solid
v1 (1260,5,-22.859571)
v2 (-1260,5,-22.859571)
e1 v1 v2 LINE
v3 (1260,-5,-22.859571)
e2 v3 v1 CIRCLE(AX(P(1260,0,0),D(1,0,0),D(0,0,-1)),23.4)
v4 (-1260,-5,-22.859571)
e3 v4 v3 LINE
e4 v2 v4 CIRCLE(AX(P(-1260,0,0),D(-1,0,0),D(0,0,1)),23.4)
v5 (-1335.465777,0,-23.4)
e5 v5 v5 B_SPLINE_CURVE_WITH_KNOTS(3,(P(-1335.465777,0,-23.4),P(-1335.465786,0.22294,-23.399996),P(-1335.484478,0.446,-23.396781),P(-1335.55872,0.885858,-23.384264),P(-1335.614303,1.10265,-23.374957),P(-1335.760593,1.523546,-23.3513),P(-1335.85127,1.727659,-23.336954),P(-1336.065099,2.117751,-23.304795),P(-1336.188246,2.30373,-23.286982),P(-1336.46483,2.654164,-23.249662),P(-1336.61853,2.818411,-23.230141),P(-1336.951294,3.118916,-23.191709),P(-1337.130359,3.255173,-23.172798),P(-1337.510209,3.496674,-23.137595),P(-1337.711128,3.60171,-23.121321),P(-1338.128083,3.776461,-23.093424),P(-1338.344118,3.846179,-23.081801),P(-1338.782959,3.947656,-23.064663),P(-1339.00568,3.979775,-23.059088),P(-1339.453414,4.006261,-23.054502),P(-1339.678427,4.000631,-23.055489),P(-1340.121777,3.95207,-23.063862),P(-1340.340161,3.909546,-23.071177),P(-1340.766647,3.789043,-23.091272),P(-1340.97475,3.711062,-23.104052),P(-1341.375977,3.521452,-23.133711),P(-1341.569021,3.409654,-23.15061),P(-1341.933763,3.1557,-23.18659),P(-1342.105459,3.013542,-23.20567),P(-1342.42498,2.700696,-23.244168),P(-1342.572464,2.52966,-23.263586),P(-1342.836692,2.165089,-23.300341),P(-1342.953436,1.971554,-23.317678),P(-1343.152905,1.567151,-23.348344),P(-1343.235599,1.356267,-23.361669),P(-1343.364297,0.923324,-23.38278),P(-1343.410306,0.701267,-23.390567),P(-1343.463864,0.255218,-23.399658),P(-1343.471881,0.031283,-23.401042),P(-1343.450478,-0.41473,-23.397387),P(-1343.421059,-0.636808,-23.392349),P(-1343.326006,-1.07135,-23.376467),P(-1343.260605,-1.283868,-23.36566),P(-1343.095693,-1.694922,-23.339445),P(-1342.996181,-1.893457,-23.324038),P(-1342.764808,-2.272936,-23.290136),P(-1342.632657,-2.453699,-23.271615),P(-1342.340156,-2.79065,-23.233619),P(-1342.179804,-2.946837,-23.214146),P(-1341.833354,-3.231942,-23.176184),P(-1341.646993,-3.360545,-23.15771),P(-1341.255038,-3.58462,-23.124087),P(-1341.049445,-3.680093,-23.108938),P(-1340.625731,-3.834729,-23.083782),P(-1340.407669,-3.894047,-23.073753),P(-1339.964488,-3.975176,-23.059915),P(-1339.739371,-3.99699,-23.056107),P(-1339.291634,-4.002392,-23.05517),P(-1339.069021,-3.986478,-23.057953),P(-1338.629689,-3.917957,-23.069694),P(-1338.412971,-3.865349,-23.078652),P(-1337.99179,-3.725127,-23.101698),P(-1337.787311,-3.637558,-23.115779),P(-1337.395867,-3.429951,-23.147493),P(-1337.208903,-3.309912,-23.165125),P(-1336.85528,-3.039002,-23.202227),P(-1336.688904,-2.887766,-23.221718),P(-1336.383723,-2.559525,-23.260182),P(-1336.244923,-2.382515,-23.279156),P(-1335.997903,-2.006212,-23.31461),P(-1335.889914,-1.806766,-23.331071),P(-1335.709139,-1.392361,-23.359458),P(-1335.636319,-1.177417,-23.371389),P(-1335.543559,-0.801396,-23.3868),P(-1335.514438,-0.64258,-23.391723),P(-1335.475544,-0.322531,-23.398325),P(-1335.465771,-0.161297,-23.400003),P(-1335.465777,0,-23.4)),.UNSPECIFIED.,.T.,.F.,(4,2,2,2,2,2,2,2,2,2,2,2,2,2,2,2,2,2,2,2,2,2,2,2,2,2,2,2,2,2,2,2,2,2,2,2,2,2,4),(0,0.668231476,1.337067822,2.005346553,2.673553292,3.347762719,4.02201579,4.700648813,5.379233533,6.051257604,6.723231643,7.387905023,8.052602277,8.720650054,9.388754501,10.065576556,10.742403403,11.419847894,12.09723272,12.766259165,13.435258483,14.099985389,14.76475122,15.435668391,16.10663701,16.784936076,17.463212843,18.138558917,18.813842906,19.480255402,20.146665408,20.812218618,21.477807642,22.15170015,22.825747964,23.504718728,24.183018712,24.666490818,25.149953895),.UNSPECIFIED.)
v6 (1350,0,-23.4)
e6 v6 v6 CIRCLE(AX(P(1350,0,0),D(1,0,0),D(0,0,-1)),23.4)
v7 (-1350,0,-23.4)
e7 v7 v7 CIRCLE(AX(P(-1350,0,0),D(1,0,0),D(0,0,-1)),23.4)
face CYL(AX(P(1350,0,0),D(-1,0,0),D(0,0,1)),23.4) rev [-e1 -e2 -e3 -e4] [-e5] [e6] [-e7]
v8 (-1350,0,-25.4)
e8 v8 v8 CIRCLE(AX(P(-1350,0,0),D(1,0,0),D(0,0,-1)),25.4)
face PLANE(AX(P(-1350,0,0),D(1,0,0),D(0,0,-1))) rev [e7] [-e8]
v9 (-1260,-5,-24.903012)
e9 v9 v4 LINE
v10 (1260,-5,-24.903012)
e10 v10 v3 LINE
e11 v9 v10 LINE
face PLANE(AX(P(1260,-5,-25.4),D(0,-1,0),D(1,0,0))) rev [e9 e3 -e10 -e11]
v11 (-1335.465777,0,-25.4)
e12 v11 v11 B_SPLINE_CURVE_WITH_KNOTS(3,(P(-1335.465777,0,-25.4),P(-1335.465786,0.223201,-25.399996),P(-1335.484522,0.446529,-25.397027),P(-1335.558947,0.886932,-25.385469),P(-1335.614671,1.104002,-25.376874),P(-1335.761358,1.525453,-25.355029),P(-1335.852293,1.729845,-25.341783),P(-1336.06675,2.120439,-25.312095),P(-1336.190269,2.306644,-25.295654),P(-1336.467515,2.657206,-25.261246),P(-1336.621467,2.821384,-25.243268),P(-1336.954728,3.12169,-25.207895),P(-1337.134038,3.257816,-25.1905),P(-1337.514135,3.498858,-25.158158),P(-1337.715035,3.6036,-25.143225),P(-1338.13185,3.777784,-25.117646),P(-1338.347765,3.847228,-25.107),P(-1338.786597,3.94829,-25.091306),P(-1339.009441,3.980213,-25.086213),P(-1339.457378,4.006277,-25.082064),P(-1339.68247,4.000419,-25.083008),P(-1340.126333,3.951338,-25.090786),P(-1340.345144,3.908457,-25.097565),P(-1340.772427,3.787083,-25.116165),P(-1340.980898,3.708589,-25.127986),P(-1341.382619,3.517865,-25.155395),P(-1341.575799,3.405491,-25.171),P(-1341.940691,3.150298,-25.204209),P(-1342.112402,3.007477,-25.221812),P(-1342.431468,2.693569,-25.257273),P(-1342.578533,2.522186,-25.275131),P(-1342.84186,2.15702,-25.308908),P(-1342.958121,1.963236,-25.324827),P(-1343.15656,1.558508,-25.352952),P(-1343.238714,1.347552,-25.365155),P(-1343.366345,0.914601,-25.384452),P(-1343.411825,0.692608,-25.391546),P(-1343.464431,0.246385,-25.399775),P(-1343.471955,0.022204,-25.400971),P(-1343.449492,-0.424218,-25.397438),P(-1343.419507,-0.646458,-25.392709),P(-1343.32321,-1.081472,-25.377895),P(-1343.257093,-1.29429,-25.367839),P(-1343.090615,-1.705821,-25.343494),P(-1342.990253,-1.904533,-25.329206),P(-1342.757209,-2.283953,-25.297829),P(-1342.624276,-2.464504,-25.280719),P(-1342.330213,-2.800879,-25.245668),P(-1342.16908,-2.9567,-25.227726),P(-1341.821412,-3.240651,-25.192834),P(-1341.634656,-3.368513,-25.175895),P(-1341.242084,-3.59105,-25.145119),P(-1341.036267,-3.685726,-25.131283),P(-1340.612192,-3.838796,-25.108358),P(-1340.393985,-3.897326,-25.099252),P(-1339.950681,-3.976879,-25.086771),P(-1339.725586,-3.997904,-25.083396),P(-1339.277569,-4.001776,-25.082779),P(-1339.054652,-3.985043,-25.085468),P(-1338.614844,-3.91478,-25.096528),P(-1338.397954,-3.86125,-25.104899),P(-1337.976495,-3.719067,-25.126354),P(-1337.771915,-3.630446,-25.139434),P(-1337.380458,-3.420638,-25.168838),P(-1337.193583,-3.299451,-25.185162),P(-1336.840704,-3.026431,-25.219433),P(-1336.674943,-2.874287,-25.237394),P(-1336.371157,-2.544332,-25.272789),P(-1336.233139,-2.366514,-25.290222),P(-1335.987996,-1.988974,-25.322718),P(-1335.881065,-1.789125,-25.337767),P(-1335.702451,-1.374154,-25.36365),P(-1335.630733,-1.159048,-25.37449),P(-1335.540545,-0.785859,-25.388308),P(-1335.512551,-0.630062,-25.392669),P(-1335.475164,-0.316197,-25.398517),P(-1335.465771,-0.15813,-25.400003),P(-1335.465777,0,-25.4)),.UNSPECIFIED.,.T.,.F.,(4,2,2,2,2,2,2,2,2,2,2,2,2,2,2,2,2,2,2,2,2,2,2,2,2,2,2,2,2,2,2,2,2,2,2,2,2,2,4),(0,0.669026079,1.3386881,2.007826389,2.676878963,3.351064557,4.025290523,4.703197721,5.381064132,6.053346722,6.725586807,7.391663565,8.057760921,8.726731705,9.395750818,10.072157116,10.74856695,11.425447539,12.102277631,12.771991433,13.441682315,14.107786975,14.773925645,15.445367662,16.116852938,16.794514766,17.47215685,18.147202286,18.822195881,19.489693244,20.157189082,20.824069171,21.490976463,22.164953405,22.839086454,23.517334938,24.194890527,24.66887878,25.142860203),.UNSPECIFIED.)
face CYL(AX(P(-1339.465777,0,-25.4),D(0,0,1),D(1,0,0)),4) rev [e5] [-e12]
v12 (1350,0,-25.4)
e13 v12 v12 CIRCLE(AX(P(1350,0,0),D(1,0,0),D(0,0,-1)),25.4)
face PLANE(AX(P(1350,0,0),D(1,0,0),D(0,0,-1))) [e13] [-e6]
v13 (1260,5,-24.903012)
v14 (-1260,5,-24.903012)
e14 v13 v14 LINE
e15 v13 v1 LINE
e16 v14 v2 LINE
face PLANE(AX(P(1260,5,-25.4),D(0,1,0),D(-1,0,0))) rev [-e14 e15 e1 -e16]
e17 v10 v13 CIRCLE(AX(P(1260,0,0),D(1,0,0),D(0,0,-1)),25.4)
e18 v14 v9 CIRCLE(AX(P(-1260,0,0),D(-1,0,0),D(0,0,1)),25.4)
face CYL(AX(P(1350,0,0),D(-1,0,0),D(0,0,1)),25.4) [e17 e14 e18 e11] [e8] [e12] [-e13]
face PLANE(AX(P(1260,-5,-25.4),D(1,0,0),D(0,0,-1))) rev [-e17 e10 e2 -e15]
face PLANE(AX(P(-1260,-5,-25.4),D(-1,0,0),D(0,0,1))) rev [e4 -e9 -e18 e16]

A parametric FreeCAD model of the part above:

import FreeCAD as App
import Part
import Sketcher
from FreeCAD import Vector

doc = App.newDocument("Part")
body = doc.addObject("PartDesign::Body", "Body")

# Sketch on YZ plane
sketch1 = body.newObject("Sketcher::SketchObject", "Sketch")
sketch1.AttachmentSupport = (doc.getObject("YZ_Plane"), [""])
sketch1.MapMode = "FlatFace"
sketch1.addGeometry(Part.Circle(Vector(0, 0, 0), Vector(0, 0, 1), 25.4), False)
sketch1.addGeometry(Part.Circle(Vector(0, 0, 0), Vector(0, 0, 1), 23.4), False)
sketch1.addConstraint(Sketcher.Constraint("Coincident", 0, 3, -1, 1))
sketch1.addConstraint(Sketcher.Constraint("Coincident", 1, 3, -1, 1))
sketch1.addConstraint(Sketcher.Constraint("Diameter", 0, 50.8))
sketch1.addConstraint(Sketcher.Constraint("Diameter", 1, 46.8))
pad1 = body.newObject("PartDesign::Pad", "Pad")
pad1.Profile = sketch1
pad1.Length = 2700
pad1.Midplane = True

# Sketch on XY plane
sketch2 = body.newObject("Sketcher::SketchObject", "Sketch001")
sketch2.AttachmentSupport = (doc.getObject("XY_Plane"), [""])
sketch2.MapMode = "FlatFace"
sketch2.addGeometry(Part.Circle(Vector(-1339.465777, 0, 0), Vector(0, 0, 1), 4), False)
sketch2.addGeometry(Part.LineSegment(Vector(-1260, 5, 0), Vector(-1260, -5, 0)), False)
sketch2.addGeometry(Part.LineSegment(Vector(-1260, -5, 0), Vector(1260, -5, 0)), False)
sketch2.addGeometry(Part.LineSegment(Vector(1260, -5, 0), Vector(1260, 5, 0)), False)
sketch2.addGeometry(Part.LineSegment(Vector(1260, 5, 0), Vector(-1260, 5, 0)), False)
sketch2.addConstraint(Sketcher.Constraint("Coincident", 1, 2, 2, 1))
sketch2.addConstraint(Sketcher.Constraint("Coincident", 2, 2, 3, 1))
sketch2.addConstraint(Sketcher.Constraint("Coincident", 3, 2, 4, 1))
sketch2.addConstraint(Sketcher.Constraint("Coincident", 4, 2, 1, 1))
sketch2.addConstraint(Sketcher.Constraint("Vertical", 1))
sketch2.addConstraint(Sketcher.Constraint("Horizontal", 2))
sketch2.addConstraint(Sketcher.Constraint("Vertical", 3))
sketch2.addConstraint(Sketcher.Constraint("Horizontal", 4))
sketch2.addConstraint(Sketcher.Constraint("Symmetric", 1, 2, 3, 2, -1, 1))
sketch2.addConstraint(Sketcher.Constraint("PointOnObject", 0, 3, -1))
sketch2.addConstraint(Sketcher.Constraint("Diameter", 0, 8.0))
sketch2.addConstraint(Sketcher.Constraint("DistanceX", 2, 1, 2, 2, 2520.0))
sketch2.addConstraint(Sketcher.Constraint("DistanceY", 1, 2, 1, 1, 10.0))
sketch2.addConstraint(Sketcher.Constraint("DistanceX", 0, 3, -1, 1, 1339.465777))
pocket1 = body.newObject("PartDesign::Pocket", "Pocket")
pocket1.Profile = sketch2
pocket1.Type = "ThroughAll"

doc.recompute()
